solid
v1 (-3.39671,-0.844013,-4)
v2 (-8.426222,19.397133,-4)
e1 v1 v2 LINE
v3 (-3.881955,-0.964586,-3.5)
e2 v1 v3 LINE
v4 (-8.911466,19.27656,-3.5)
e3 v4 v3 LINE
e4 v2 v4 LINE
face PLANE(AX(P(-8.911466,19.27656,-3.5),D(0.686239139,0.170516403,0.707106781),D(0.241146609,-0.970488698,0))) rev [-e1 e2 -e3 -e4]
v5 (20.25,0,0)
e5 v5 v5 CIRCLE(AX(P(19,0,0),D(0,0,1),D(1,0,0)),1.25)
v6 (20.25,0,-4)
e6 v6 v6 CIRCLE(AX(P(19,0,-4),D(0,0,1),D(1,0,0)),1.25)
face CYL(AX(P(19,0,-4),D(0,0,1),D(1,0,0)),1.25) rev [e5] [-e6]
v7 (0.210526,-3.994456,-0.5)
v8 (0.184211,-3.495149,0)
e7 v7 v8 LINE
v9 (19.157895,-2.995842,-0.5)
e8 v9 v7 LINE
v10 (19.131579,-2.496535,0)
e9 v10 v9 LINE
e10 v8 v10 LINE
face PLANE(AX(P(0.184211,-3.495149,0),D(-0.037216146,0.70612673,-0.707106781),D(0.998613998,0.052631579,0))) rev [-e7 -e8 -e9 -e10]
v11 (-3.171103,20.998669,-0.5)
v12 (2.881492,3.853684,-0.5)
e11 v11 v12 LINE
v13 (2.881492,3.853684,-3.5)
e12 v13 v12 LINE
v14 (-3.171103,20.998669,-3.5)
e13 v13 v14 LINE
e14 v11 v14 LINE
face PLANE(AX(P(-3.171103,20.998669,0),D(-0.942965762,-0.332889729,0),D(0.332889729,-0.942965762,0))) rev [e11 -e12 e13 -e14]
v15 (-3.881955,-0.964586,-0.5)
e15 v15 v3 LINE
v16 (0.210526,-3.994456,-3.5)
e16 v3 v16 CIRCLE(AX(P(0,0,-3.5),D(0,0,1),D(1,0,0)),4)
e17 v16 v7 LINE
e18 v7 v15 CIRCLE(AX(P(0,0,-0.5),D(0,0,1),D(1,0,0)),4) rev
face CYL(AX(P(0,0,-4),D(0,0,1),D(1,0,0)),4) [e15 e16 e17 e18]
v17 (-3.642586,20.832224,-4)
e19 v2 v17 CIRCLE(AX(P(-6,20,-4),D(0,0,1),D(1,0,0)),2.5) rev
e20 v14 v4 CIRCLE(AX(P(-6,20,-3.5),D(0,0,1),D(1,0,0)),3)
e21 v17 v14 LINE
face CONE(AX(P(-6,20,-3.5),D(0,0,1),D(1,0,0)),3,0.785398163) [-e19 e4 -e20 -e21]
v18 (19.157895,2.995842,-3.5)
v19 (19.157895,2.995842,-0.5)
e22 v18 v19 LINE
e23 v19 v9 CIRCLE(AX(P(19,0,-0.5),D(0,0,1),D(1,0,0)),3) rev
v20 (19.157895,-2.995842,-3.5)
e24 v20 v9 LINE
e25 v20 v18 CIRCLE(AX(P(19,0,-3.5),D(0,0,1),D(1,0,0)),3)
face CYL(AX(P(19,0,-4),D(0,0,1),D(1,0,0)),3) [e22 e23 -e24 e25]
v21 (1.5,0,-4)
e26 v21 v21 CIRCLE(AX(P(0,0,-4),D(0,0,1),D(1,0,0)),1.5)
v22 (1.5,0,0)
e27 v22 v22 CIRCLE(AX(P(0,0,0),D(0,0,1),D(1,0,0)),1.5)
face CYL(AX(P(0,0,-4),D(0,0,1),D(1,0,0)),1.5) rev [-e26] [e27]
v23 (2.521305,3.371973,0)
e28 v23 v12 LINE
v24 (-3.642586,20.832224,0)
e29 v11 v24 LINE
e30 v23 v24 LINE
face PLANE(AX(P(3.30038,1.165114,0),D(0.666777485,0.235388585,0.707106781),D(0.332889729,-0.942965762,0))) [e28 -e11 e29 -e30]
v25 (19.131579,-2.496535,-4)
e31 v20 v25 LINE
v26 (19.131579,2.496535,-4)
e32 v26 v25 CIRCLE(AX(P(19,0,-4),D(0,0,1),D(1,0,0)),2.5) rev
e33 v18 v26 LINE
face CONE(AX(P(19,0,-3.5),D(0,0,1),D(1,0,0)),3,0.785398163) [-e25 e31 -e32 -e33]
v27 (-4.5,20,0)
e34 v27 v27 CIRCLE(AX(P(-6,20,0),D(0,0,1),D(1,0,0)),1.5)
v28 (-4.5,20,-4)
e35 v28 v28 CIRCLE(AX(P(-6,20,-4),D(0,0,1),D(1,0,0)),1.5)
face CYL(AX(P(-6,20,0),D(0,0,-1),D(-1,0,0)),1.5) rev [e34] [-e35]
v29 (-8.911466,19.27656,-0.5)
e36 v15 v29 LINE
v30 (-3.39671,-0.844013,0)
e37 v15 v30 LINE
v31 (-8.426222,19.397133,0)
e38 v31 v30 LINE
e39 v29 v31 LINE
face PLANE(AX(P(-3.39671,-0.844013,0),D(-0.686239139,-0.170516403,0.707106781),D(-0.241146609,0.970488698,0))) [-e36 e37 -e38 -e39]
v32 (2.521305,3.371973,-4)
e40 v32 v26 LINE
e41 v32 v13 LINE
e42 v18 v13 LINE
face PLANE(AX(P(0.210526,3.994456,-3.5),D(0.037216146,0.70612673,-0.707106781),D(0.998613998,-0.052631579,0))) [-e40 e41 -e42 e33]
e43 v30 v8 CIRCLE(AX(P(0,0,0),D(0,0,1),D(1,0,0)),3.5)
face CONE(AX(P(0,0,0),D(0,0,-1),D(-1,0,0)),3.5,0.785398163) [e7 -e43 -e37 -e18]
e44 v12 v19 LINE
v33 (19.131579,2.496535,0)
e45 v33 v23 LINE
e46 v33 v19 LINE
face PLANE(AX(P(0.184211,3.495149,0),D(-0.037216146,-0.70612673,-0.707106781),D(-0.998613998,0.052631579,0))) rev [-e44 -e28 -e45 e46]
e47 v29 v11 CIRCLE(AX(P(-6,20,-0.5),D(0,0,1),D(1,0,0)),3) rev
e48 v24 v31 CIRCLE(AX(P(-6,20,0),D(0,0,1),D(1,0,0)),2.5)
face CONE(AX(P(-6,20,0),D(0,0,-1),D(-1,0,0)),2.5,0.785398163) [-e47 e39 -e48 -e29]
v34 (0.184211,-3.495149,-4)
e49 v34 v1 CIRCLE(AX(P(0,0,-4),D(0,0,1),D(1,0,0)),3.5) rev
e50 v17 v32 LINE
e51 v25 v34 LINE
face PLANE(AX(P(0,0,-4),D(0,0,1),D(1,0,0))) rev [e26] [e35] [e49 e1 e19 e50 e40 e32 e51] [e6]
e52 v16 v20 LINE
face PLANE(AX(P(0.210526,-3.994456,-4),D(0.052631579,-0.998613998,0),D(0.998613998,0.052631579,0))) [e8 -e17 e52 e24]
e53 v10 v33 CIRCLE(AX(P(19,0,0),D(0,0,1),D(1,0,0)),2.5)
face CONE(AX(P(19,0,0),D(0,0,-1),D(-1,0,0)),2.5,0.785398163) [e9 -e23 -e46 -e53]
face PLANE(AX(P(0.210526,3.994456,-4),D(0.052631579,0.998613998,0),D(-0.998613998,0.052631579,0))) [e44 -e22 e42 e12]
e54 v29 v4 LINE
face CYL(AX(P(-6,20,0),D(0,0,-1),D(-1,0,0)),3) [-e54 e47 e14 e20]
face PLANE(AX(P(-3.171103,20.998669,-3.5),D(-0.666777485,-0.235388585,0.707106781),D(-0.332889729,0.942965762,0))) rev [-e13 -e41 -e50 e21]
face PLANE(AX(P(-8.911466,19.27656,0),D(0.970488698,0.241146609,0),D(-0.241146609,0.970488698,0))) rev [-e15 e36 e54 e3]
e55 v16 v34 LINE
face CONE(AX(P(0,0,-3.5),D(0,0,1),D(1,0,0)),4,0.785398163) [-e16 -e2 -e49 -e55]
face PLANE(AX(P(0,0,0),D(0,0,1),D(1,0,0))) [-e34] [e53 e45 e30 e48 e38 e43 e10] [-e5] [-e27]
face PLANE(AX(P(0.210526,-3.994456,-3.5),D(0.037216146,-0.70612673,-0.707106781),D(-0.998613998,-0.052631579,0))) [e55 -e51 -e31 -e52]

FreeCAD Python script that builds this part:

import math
import FreeCAD as App
import Part
import Sketcher

V = App.Vector


def edges_at(feature, points):
    """Names of the edges that pass closest to the given points."""
    edges = feature.Shape.Edges
    near = lambda p: min(range(len(edges)), key=lambda i: edges[i].distToShape(Part.Vertex(*p))[0])
    return sorted({f"Edge{near(p) + 1}" for p in points})

doc = App.newDocument("Part")
body = doc.addObject("PartDesign::Body", "Body")

# Sketch on XY plane
sketch1 = body.newObject("Sketcher::SketchObject", "Sketch")
sketch1.AttachmentSupport = (doc.getObject("XY_Plane"), [""])
sketch1.MapMode = "FlatFace"
sketch1.addGeometry([
    Part.Circle(V(0, 0, 0), V(0, 0, 1), 3),
    Part.Circle(V(0, 0, 0), V(0, 0, 1), 1.5),
], False)
sketch1.addConstraint([
    Sketcher.Constraint("Coincident", 0, 3, -1, 1),
    Sketcher.Constraint("Coincident", 1, 3, -1, 1),
    Sketcher.Constraint("Diameter", 0, 6.0),
    Sketcher.Constraint("Diameter", 1, 3.0),
])
pad1 = body.newObject("PartDesign::Pad", "Pad")
pad1.Profile = sketch1
pad1.Length = 4
pad1.Reversed = True

# Sketch on XY plane
sketch2 = body.newObject("Sketcher::SketchObject", "Sketch001")
sketch2.AttachmentSupport = (doc.getObject("XY_Plane"), [""])
sketch2.MapMode = "FlatFace"
sketch2.addGeometry([
    Part.LineSegment(V(19.2, 3, 0), V(0.2, 4, 0)),  # 0
    Part.ArcOfCircle(Part.Circle(V(0, 0, 0), V(0, 0, 1), 4), math.radians(87), math.radians(273)),  # 1
    Part.LineSegment(V(0.2, -4, 0), V(19.2, -3, 0)),  # 2
    Part.ArcOfCircle(Part.Circle(V(19, 0, 0), V(0, 0, 1), 3), math.radians(-87), math.radians(87)),  # 3
    Part.Circle(V(19, 0, 0), V(0, 0, 1), 1.2),  # 4
    Part.Circle(V(0, 0, 0), V(0, 0, 1), 1.5),  # 5
], False)
sketch2.addConstraint([
    Sketcher.Constraint("Tangent", 0, 2, 1, 1),
    Sketcher.Constraint("Tangent", 1, 2, 2, 1),
    Sketcher.Constraint("Tangent", 2, 2, 3, 1),
    Sketcher.Constraint("Tangent", 3, 2, 0, 1),
    Sketcher.Constraint("Coincident", 1, 3, -1, 1),
    Sketcher.Constraint("Coincident", 5, 3, -1, 1),
    Sketcher.Constraint("Coincident", 4, 3, 3, 3),
    Sketcher.Constraint("PointOnObject", 3, 3, -1),
    Sketcher.Constraint("Diameter", 5, 3.0),
    Sketcher.Constraint("Radius", 1, 4.0),
    Sketcher.Constraint("Radius", 3, 3.0),
    Sketcher.Constraint("Diameter", 4, 2.5),
    Sketcher.Constraint("DistanceX", -1, 1, 3, 3, 19.0),
])
pad2 = body.newObject("PartDesign::Pad", "Pad001")
pad2.Profile = sketch2
pad2.Length = 4
pad2.Reversed = True

# Sketch on XY plane
sketch3 = body.newObject("Sketcher::SketchObject", "Sketch002")
sketch3.AttachmentSupport = (doc.getObject("XY_Plane"), [""])
sketch3.MapMode = "FlatFace"
sketch3.AttachmentOffset = App.Placement(V(0, 0, -4), App.Rotation())
sketch3.addGeometry([
    Part.LineSegment(V(3.8, 1.3, 0), V(-3.2, 21, 0)),  # 0
    Part.ArcOfCircle(Part.Circle(V(-6, 20, 0), V(0, 0, 1), 3), math.radians(19), math.radians(194)),  # 1
    Part.LineSegment(V(-8.9, 19.3, 0), V(-3.9, -1, 0)),  # 2
    Part.ArcOfCircle(Part.Circle(V(0, 0, 0), V(0, 0, 1), 4), math.radians(-166), math.radians(19)),  # 3
    Part.Circle(V(0, 0, 0), V(0, 0, 1), 3),  # 4
    Part.Circle(V(-6, 20, 0), V(0, 0, 1), 1.5),  # 5
], False)
sketch3.addConstraint([
    Sketcher.Constraint("Tangent", 0, 2, 1, 1),
    Sketcher.Constraint("Tangent", 1, 2, 2, 1),
    Sketcher.Constraint("Tangent", 2, 2, 3, 1),
    Sketcher.Constraint("Tangent", 3, 2, 0, 1),
    Sketcher.Constraint("Coincident", 3, 3, -1, 1),
    Sketcher.Constraint("Coincident", 4, 3, -1, 1),
    Sketcher.Constraint("Coincident", 5, 3, 1, 3),
    Sketcher.Constraint("Diameter", 5, 3.0),
    Sketcher.Constraint("Radius", 1, 3.0),
    Sketcher.Constraint("Radius", 3, 4.0),
    Sketcher.Constraint("DistanceX", 1, 3, -1, 1, 6.0),
    Sketcher.Constraint("DistanceY", -1, 1, 1, 3, 20.0),
    Sketcher.Constraint("Diameter", 4, 6.040093),
])
pad3 = body.newObject("PartDesign::Pad", "Pad002")
pad3.Profile = sketch3
pad3.Length = 4
doc.recompute()

chamfer = body.newObject("PartDesign::Chamfer", "Chamfer")
chamfer.Base = (pad3, edges_at(pad3, [
    (11.02, 3.425, -4),
    (22, 0, -4),
    (9.684, -3.495, -4),
    (9.684, -3.495, 0),
    (22, 0, 0),
    (11.02, 3.425, 0),
    (-2.38, -3.215, 0),
    (-2.38, -3.215, -4),
    (-6.397, 9.156, 0),
    (-0.145, 12.426, 0),
    (-6.862, 22.873, 0),
    (-6.862, 22.873, -4),
    (-6.397, 9.156, -4),
    (-0.145, 12.426, -4),
]))
chamfer.Size = 0.5

doc.recompute()
